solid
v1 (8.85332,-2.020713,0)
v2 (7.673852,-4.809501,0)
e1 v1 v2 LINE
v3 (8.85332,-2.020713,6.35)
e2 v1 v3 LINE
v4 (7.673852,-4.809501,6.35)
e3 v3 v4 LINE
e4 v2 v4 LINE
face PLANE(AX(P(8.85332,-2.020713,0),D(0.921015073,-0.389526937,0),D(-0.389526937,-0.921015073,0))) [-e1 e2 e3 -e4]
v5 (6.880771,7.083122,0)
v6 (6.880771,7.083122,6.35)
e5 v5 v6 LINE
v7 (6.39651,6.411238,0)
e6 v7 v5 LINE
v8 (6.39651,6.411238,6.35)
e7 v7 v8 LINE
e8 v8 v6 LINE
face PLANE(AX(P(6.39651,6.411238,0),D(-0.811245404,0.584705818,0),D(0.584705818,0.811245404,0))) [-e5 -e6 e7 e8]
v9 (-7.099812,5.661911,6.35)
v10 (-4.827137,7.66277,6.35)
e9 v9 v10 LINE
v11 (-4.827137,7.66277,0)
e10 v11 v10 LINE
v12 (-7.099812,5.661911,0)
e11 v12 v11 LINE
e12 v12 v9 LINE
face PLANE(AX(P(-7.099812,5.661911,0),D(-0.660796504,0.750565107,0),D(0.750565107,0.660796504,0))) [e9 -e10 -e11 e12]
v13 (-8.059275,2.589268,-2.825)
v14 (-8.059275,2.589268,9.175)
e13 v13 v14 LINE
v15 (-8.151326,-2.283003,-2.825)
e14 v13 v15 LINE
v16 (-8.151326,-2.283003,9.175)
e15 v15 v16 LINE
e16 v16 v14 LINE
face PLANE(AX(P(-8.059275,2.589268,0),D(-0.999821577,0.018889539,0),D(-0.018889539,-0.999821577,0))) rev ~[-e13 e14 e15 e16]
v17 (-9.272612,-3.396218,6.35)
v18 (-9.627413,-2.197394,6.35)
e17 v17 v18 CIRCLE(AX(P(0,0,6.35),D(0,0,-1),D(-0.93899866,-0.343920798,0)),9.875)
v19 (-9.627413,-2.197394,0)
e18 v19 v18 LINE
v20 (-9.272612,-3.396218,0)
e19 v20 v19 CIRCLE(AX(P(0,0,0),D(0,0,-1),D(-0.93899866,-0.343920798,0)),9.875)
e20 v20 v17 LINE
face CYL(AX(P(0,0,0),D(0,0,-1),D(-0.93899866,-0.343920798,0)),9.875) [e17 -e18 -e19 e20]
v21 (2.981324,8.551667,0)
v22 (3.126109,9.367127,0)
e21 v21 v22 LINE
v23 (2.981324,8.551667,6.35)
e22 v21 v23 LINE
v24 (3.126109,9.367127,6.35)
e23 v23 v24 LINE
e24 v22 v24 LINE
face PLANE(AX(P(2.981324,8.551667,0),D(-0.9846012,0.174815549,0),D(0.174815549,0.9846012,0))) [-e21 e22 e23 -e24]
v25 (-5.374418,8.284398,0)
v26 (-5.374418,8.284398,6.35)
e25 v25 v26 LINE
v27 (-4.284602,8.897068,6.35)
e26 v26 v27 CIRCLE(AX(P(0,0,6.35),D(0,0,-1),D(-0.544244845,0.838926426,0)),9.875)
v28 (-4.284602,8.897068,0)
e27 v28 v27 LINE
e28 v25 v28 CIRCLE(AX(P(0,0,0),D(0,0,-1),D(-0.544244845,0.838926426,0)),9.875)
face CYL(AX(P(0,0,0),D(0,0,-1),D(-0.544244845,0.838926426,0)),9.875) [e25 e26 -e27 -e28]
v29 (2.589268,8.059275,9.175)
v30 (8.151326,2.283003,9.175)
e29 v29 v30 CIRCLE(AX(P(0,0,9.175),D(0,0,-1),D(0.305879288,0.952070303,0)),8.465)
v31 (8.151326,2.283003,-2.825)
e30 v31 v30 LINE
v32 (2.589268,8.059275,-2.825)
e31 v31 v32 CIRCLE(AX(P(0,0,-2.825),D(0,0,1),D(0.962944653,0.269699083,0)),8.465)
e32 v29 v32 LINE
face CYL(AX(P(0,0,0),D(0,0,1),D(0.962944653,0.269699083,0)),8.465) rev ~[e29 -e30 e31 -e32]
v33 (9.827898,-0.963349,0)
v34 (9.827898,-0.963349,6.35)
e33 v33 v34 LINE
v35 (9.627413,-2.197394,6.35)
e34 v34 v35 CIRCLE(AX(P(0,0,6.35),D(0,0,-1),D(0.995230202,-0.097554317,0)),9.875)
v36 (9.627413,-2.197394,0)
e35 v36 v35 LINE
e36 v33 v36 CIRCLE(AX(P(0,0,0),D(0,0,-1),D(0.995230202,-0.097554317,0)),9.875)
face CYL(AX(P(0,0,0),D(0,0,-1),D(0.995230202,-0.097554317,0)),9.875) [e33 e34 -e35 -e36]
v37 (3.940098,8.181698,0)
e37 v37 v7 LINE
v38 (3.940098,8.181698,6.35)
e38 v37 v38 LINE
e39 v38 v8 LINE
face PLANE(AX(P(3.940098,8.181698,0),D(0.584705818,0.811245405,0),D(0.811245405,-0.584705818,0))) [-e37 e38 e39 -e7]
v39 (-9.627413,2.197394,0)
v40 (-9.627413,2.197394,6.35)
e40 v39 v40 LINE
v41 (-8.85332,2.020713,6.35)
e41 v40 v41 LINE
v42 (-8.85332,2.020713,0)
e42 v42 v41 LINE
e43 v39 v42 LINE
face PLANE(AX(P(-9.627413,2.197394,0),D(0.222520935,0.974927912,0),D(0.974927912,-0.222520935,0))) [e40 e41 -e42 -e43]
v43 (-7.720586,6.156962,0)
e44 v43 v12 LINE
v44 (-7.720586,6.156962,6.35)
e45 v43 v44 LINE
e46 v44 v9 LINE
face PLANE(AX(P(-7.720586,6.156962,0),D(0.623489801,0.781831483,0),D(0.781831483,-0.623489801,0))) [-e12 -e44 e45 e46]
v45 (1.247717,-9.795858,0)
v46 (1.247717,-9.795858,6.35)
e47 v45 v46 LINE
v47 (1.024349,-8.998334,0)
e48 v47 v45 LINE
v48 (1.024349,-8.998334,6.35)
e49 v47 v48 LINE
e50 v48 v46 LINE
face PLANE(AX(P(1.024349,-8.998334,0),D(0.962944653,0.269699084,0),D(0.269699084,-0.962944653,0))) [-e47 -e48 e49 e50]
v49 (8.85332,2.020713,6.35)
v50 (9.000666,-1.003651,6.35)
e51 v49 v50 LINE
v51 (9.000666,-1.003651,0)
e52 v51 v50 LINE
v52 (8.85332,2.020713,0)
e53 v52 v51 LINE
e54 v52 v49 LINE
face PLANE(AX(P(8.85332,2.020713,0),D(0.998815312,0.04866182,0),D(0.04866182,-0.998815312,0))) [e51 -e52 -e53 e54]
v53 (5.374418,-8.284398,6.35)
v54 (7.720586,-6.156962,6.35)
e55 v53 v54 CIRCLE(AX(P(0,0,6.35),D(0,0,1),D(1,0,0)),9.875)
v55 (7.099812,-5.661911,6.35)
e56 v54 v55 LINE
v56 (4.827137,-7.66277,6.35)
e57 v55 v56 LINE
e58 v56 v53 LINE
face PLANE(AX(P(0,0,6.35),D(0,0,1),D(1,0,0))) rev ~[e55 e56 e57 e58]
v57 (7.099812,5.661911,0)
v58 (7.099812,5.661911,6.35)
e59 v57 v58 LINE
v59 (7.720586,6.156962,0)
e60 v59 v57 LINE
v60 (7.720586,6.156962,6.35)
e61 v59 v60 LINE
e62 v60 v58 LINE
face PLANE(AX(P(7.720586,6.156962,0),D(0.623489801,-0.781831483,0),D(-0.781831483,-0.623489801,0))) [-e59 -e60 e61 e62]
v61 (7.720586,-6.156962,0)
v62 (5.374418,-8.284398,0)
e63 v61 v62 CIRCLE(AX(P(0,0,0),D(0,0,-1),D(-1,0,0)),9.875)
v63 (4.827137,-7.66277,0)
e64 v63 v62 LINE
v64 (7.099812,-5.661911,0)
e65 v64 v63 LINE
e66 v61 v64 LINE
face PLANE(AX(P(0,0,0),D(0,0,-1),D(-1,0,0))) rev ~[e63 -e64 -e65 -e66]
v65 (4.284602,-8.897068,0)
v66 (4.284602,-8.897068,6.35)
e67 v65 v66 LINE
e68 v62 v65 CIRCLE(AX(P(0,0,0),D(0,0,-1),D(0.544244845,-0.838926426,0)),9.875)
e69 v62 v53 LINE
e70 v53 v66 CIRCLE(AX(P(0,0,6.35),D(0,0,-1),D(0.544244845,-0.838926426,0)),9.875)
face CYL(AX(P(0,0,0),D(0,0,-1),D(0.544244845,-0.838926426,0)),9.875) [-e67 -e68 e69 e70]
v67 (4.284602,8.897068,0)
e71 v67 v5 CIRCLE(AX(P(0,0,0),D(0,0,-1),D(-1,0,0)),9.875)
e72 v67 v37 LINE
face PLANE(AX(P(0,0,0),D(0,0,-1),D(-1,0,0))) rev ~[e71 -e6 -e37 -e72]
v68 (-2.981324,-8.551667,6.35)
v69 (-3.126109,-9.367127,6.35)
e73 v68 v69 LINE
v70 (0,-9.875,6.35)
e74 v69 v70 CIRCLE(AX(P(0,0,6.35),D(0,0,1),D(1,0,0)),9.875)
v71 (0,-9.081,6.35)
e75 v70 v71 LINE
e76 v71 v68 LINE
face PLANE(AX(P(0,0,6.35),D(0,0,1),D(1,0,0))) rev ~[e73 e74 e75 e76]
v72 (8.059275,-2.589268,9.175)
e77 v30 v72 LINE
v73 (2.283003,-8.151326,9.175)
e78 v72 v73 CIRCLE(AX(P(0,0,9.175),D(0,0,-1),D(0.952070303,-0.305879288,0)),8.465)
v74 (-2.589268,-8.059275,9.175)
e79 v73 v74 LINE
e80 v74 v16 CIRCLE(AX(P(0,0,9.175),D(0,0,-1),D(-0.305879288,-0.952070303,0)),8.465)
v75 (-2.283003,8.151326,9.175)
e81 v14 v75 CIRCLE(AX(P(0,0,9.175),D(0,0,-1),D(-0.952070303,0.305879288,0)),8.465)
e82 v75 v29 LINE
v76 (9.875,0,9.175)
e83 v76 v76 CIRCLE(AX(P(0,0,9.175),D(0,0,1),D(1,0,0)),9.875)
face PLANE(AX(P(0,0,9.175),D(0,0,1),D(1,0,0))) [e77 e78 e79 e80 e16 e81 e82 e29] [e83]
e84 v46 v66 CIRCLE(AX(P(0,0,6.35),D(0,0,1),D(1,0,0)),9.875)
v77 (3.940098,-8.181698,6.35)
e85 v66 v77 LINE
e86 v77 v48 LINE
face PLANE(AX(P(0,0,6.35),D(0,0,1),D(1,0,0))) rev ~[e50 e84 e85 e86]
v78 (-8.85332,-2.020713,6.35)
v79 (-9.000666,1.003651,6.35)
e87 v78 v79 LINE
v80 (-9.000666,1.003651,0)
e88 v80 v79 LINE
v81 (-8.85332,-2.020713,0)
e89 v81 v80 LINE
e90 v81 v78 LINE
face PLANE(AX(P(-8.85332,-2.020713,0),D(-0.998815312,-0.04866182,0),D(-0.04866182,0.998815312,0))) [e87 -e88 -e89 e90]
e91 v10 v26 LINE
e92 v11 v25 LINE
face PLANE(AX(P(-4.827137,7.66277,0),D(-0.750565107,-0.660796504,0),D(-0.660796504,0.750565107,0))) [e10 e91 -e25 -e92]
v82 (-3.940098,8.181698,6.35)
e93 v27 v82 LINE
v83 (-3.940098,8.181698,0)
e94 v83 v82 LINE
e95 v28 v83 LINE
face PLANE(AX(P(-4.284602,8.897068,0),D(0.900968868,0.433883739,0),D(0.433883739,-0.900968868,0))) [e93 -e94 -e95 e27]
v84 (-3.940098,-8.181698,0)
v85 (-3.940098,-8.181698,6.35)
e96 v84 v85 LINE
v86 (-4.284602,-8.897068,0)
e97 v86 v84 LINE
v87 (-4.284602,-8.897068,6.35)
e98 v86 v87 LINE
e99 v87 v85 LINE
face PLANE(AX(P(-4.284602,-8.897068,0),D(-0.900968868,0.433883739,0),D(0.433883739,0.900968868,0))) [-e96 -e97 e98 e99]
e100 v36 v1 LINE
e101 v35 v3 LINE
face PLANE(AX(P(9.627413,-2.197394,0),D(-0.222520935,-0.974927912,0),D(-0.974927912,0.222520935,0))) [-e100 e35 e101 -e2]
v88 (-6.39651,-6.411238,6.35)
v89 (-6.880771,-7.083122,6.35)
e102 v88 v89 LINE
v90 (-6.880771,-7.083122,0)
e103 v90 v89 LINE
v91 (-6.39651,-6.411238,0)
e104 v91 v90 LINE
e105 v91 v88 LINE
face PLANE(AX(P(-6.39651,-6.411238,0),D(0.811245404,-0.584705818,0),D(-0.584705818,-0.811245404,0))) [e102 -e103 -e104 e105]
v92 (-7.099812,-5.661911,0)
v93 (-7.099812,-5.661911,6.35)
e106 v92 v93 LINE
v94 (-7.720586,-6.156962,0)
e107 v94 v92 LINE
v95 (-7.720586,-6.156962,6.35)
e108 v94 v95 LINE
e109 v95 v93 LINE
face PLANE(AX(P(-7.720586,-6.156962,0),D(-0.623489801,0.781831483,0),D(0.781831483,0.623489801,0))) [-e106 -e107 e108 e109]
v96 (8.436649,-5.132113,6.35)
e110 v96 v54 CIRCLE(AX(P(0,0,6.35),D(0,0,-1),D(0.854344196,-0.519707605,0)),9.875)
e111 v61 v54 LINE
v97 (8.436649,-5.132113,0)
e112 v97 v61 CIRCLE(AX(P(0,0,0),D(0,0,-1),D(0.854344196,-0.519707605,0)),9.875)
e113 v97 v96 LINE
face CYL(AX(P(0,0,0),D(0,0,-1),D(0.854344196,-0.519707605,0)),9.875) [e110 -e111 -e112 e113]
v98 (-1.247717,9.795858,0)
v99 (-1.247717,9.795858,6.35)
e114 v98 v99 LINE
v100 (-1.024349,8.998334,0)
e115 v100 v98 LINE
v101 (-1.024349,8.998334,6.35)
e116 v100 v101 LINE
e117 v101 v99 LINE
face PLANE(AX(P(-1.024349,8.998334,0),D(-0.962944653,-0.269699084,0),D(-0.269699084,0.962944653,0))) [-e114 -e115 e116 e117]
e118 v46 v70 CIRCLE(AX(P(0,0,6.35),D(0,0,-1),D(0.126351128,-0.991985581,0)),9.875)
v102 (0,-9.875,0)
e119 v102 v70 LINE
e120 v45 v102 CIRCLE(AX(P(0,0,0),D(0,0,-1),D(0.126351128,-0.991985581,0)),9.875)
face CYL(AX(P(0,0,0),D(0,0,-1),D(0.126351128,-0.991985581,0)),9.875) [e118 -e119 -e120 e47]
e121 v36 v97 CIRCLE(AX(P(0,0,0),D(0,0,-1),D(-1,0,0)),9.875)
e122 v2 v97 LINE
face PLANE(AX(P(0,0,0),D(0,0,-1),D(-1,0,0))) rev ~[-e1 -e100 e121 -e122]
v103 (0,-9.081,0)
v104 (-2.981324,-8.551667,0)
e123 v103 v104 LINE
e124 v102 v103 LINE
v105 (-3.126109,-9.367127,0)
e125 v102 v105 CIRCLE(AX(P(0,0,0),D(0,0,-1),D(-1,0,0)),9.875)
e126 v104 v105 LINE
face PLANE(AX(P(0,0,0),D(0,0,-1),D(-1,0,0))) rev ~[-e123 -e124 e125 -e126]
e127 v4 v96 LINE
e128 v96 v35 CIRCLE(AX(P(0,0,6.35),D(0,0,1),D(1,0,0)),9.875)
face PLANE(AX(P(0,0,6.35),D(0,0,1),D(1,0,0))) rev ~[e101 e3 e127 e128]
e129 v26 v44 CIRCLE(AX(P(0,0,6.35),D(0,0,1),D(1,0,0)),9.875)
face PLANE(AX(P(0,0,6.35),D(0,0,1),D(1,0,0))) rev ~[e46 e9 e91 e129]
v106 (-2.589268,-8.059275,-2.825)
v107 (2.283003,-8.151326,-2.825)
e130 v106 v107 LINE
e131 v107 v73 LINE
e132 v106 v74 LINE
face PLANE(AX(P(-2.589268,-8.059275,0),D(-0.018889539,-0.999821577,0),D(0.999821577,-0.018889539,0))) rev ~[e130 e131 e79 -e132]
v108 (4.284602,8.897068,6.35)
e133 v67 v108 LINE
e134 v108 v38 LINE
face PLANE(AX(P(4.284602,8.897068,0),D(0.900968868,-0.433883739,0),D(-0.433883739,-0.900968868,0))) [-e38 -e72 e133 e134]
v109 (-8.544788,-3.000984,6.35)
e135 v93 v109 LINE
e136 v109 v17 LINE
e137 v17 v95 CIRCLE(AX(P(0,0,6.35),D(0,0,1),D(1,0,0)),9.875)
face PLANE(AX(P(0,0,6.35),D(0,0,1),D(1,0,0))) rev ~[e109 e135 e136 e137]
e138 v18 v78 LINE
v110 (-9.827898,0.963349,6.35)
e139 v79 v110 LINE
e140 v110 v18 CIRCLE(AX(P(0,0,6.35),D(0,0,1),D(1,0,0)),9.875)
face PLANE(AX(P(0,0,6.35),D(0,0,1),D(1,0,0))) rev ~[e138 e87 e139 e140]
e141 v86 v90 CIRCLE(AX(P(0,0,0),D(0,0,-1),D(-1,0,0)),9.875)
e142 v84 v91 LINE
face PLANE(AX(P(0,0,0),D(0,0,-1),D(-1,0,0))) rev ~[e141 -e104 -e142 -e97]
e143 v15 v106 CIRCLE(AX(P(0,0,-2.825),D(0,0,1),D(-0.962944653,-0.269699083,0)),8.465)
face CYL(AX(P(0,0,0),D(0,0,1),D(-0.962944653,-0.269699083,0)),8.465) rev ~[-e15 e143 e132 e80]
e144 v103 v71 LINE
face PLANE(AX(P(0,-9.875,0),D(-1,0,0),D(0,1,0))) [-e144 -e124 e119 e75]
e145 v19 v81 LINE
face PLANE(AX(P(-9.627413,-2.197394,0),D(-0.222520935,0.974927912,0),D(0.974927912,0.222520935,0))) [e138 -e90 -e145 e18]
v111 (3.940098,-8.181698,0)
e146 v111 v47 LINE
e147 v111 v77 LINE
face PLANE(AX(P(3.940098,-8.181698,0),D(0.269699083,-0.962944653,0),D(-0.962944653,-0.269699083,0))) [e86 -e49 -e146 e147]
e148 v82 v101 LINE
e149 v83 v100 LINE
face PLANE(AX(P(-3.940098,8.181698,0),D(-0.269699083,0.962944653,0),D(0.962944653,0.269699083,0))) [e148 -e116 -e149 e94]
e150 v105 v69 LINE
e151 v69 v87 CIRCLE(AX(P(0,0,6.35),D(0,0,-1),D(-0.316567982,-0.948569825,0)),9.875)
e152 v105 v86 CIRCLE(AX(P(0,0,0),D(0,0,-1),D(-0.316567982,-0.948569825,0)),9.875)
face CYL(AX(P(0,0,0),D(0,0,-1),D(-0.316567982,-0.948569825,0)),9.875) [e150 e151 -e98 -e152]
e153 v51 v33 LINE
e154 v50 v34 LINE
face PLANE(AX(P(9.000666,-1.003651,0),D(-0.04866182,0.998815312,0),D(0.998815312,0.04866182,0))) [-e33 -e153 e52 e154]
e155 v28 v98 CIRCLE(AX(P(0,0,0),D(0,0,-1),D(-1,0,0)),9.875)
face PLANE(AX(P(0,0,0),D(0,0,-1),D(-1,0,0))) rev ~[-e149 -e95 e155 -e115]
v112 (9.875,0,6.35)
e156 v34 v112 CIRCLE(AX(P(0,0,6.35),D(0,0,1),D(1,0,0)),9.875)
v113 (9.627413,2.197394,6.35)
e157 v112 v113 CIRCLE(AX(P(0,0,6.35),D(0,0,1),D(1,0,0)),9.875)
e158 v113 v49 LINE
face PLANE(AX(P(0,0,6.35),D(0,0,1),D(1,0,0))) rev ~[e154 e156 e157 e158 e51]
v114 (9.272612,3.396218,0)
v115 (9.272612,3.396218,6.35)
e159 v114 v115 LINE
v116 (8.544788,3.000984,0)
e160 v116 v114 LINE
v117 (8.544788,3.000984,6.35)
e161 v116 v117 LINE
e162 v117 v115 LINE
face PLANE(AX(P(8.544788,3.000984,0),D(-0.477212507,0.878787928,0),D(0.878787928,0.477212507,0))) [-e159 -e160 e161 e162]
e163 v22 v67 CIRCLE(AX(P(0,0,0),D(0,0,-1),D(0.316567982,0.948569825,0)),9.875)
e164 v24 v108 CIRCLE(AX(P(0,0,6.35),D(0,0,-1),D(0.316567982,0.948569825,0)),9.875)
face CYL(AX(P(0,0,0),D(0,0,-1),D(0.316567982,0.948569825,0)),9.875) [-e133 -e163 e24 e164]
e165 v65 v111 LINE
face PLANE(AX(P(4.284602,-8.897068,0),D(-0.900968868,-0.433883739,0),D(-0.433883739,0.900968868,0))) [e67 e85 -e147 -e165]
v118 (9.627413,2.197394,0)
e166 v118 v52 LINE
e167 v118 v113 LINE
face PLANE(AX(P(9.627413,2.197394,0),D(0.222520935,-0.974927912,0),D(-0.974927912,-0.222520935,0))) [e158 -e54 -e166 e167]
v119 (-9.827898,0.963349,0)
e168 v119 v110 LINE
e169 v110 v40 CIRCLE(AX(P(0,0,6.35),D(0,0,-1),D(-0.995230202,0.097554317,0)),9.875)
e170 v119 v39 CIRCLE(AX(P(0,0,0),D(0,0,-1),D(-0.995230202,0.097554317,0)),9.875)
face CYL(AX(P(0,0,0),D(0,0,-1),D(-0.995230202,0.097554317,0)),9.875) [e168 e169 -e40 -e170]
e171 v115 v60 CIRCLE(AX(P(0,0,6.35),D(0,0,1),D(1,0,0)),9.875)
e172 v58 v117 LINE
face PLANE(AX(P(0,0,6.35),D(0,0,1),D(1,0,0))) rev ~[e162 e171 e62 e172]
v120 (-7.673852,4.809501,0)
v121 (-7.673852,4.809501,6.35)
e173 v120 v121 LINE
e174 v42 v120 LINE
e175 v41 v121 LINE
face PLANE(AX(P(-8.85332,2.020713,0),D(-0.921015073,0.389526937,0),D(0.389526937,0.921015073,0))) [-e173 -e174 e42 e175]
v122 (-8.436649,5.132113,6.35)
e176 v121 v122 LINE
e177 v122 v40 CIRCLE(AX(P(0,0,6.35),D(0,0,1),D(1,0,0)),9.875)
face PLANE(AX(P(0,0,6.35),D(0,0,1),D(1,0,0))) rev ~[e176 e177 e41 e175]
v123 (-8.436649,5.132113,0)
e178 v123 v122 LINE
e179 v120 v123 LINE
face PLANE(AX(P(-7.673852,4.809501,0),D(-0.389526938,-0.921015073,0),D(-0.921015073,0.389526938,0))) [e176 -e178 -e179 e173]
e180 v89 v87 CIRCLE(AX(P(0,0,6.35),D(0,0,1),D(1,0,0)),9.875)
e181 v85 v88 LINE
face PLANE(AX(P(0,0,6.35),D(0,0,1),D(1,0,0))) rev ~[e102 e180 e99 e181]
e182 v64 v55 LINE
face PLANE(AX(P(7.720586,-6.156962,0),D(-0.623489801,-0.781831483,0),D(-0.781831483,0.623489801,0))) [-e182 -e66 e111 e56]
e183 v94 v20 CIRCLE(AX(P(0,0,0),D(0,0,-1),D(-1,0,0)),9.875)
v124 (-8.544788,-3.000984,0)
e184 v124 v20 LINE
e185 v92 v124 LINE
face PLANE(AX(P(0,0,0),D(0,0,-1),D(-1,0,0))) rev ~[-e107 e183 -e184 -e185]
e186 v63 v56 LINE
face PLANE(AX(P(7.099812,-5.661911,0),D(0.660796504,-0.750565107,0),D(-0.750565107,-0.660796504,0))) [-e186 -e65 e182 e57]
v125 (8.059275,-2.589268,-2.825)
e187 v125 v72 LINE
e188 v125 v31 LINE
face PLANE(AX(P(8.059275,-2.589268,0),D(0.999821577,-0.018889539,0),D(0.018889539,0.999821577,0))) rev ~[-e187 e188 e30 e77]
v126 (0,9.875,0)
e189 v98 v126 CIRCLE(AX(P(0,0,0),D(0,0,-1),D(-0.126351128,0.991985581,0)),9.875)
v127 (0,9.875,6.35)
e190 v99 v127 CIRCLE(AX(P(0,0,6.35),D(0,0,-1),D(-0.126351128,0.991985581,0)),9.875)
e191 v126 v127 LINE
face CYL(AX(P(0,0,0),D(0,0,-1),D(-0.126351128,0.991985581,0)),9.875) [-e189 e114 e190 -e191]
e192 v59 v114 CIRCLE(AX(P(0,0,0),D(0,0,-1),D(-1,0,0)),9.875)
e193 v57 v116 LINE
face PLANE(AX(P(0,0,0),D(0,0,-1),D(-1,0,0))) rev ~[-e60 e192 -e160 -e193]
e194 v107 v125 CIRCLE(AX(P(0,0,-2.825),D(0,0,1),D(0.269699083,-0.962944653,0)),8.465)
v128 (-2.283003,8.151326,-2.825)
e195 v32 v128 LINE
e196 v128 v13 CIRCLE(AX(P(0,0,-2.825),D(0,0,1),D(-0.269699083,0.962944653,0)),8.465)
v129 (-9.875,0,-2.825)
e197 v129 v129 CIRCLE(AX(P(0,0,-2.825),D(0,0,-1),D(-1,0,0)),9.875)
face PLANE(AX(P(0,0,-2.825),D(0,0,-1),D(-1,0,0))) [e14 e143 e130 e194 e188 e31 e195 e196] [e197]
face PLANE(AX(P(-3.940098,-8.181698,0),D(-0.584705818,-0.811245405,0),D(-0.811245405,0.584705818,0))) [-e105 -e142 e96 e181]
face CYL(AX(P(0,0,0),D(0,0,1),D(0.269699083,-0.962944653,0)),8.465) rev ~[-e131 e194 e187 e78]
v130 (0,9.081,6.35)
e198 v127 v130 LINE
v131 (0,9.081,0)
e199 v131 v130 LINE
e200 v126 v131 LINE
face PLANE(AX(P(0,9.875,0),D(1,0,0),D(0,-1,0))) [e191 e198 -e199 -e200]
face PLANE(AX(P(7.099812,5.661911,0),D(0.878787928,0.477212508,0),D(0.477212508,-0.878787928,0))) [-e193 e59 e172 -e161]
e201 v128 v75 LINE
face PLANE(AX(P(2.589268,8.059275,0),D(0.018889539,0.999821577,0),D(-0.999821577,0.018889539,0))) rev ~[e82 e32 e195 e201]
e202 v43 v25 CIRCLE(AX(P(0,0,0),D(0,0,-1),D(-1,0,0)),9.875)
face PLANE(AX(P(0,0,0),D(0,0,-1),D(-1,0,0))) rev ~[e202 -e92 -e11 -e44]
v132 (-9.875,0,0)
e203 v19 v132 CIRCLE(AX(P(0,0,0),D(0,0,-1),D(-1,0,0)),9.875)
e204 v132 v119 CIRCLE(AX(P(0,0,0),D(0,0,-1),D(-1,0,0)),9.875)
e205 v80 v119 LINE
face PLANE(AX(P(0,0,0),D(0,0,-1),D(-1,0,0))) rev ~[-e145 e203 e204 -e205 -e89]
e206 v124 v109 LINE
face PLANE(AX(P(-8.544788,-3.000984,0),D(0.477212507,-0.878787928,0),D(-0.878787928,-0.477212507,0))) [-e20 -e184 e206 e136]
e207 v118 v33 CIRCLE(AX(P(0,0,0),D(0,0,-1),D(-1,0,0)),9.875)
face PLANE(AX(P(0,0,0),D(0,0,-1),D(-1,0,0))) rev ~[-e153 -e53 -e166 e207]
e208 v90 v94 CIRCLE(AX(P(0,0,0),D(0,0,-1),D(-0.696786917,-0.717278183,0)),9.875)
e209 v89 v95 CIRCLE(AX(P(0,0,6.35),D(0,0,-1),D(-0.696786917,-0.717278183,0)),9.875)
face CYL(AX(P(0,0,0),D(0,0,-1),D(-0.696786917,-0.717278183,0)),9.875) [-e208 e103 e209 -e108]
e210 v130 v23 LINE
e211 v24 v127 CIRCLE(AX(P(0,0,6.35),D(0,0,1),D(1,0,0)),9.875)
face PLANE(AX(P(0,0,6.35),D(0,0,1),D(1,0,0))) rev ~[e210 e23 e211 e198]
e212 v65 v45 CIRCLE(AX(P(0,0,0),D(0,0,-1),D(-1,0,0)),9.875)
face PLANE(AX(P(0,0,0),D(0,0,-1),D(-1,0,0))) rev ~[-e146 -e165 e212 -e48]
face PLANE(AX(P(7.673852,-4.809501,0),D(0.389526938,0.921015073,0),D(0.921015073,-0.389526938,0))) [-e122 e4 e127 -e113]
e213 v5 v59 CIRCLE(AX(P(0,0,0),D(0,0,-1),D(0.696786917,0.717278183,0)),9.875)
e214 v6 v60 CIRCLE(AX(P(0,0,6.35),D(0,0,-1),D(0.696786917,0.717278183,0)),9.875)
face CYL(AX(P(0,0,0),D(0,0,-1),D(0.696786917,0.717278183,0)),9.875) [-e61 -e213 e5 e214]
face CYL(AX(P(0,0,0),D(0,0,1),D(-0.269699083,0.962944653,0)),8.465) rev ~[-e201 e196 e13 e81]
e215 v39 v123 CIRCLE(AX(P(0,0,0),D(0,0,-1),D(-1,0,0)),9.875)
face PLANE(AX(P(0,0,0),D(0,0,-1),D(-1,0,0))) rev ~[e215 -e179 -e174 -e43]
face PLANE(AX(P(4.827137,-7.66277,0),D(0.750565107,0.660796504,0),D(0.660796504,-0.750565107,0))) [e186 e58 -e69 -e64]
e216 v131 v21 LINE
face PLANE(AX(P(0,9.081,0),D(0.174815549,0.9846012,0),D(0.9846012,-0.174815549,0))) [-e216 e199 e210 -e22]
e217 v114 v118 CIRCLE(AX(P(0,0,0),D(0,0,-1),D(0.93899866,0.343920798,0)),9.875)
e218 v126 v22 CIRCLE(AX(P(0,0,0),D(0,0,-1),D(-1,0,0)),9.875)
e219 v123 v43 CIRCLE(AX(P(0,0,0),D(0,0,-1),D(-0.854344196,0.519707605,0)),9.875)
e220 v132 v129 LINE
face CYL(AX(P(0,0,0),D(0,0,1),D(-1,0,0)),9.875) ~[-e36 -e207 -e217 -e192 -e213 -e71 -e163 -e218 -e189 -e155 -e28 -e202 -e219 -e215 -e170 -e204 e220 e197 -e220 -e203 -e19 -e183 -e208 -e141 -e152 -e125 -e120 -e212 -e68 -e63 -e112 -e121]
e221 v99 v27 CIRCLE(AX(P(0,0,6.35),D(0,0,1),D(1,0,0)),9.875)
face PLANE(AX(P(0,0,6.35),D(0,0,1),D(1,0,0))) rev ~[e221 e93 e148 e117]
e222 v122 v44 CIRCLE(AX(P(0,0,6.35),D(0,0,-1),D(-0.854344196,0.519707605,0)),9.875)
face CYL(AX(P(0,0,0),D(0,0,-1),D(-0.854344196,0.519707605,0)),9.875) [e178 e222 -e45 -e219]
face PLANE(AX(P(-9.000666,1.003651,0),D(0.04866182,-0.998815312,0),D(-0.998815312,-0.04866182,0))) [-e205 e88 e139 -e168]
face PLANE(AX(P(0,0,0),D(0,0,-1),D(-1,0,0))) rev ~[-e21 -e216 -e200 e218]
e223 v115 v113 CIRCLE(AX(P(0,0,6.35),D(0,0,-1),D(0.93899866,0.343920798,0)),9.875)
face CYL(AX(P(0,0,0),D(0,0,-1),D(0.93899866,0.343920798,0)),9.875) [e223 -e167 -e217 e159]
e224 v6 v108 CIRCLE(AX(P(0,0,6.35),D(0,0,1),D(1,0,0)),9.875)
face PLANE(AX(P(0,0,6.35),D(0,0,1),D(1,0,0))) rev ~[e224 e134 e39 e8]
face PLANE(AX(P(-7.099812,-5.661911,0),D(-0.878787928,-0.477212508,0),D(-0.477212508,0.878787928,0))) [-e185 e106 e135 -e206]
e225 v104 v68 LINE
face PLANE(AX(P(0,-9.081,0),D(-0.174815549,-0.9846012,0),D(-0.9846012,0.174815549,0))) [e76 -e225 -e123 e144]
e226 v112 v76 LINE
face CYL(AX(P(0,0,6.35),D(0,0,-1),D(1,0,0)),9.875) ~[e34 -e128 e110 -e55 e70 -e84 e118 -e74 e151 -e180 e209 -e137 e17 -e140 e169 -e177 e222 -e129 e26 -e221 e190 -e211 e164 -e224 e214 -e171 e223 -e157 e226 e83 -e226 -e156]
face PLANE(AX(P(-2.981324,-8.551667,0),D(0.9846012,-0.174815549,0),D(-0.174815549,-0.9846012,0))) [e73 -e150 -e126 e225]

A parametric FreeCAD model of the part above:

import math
import FreeCAD as App
import Part
import Sketcher

V = App.Vector
Q = App.Units.Quantity

doc = App.newDocument("Part")
params = doc.addObject("Spreadsheet::Sheet", "Params")
for row, (alias, value) in enumerate([
    ("pad1_length", "0.25 in"),
    ("pad2_length", "2.825 mm"),
    ("pad3_length", "2.825 mm"),
], start=1):
    params.set(f"A{row}", alias)
    params.set(f"B{row}", "=" + value)
    params.setAlias(f"B{row}", alias)

body = doc.addObject("PartDesign::Body", "Body")

sketch1 = doc.addObject("Sketcher::SketchObject", "Sketch")
body.addObject(sketch1)
sketch1.AttachmentSupport = (doc.XY_Plane, [""])
sketch1.MapMode = "FlatFace"
sketch1.addGeometry(Part.LineSegment(V(2.981324, 8.551667, 0), V(0, 9.081, 0)), False)
sketch1.addGeometry(Part.LineSegment(V(0, 9.081, 0), V(0, 9.875, 0)), False)
sketch1.addGeometry(Part.ArcOfCircle(Part.Circle(V(0, 0, 0), V(0, 0, 1), 9.875), math.radians(90), math.radians(97.258788)), False)
sketch1.addGeometry(Part.LineSegment(V(-1.247717, 9.795858, 0), V(-1.024349, 8.998334, 0)), False)
sketch1.addGeometry(Part.LineSegment(V(-1.024349, 8.998334, 0), V(-3.940098, 8.181698, 0)), False)
sketch1.addGeometry(Part.LineSegment(V(-3.940098, 8.181698, 0), V(-4.284602, 8.897068, 0)), False)
sketch1.addGeometry(Part.ArcOfCircle(Part.Circle(V(0, 0, 0), V(0, 0, 1), 9.875), math.radians(115.714286), math.radians(122.973074)), False)
sketch1.addGeometry(Part.LineSegment(V(-5.374418, 8.284398, 0), V(-4.827137, 7.66277, 0)), False)
sketch1.addGeometry(Part.LineSegment(V(-4.827137, 7.66277, 0), V(-7.099812, 5.661911, 0)), False)
sketch1.addGeometry(Part.LineSegment(V(-7.099812, 5.661911, 0), V(-7.720586, 6.156962, 0)), False)
sketch1.addGeometry(Part.ArcOfCircle(Part.Circle(V(0, 0, 0), V(0, 0, 1), 9.875), math.radians(141.428571), math.radians(148.68736)), False)
sketch1.addGeometry(Part.LineSegment(V(-8.436649, 5.132113, 0), V(-7.673852, 4.809501, 0)), False)
sketch1.addGeometry(Part.LineSegment(V(-7.673852, 4.809501, 0), V(-8.85332, 2.020713, 0)), False)
sketch1.addGeometry(Part.LineSegment(V(-8.85332, 2.020713, 0), V(-9.627413, 2.197394, 0)), False)
sketch1.addGeometry(Part.ArcOfCircle(Part.Circle(V(0, 0, 0), V(0, 0, 1), 9.875), math.radians(167.142857), math.radians(174.401646)), False)
sketch1.addGeometry(Part.LineSegment(V(-9.827898, 0.963349, 0), V(-9.000666, 1.003651, 0)), False)
sketch1.addGeometry(Part.LineSegment(V(-9.000666, 1.003651, 0), V(-8.85332, -2.020713, 0)), False)
sketch1.addGeometry(Part.LineSegment(V(-8.85332, -2.020713, 0), V(-9.627413, -2.197394, 0)), False)
sketch1.addGeometry(Part.ArcOfCircle(Part.Circle(V(0, 0, 0), V(0, 0, 1), 9.875), math.radians(-167.142857), math.radians(-159.884069)), False)
sketch1.addGeometry(Part.LineSegment(V(-9.272612, -3.396218, 0), V(-8.544788, -3.000984, 0)), False)
sketch1.addGeometry(Part.LineSegment(V(-8.544788, -3.000984, 0), V(-7.099812, -5.661911, 0)), False)
sketch1.addGeometry(Part.LineSegment(V(-7.099812, -5.661911, 0), V(-7.720586, -6.156962, 0)), False)
sketch1.addGeometry(Part.ArcOfCircle(Part.Circle(V(0, 0, 0), V(0, 0, 1), 9.875), math.radians(-141.428572), math.radians(-134.169783)), False)
sketch1.addGeometry(Part.LineSegment(V(-6.880771, -7.083122, 0), V(-6.39651, -6.411238, 0)), False)
sketch1.addGeometry(Part.LineSegment(V(-6.39651, -6.411238, 0), V(-3.940098, -8.181698, 0)), False)
sketch1.addGeometry(Part.LineSegment(V(-3.940098, -8.181698, 0), V(-4.284602, -8.897068, 0)), False)
sketch1.addGeometry(Part.ArcOfCircle(Part.Circle(V(0, 0, 0), V(0, 0, 1), 9.875), math.radians(-115.714286), math.radians(-108.455497)), False)
sketch1.addGeometry(Part.LineSegment(V(-3.126109, -9.367127, 0), V(-2.981324, -8.551667, 0)), False)
sketch1.addGeometry(Part.LineSegment(V(-2.981324, -8.551667, 0), V(0, -9.081, 0)), False)
sketch1.addGeometry(Part.LineSegment(V(0, -9.081, 0), V(0, -9.875, 0)), False)
sketch1.addGeometry(Part.ArcOfCircle(Part.Circle(V(0, 0, 0), V(0, 0, 1), 9.875), math.radians(-90), math.radians(-82.741212)), False)
sketch1.addGeometry(Part.LineSegment(V(1.247717, -9.795858, 0), V(1.024349, -8.998334, 0)), False)
sketch1.addGeometry(Part.LineSegment(V(1.024349, -8.998334, 0), V(3.940098, -8.181698, 0)), False)
sketch1.addGeometry(Part.LineSegment(V(3.940098, -8.181698, 0), V(4.284602, -8.897068, 0)), False)
sketch1.addGeometry(Part.ArcOfCircle(Part.Circle(V(0, 0, 0), V(0, 0, 1), 9.875), math.radians(-64.285714), math.radians(-57.026926)), False)
sketch1.addGeometry(Part.LineSegment(V(5.374418, -8.284398, 0), V(4.827137, -7.66277, 0)), False)
sketch1.addGeometry(Part.LineSegment(V(4.827137, -7.66277, 0), V(7.099812, -5.661911, 0)), False)
sketch1.addGeometry(Part.LineSegment(V(7.099812, -5.661911, 0), V(7.720586, -6.156962, 0)), False)
sketch1.addGeometry(Part.ArcOfCircle(Part.Circle(V(0, 0, 0), V(0, 0, 1), 9.875), math.radians(-38.571429), math.radians(-31.31264)), False)
sketch1.addGeometry(Part.LineSegment(V(8.436649, -5.132113, 0), V(7.673852, -4.809501, 0)), False)
sketch1.addGeometry(Part.LineSegment(V(7.673852, -4.809501, 0), V(8.85332, -2.020713, 0)), False)
sketch1.addGeometry(Part.LineSegment(V(8.85332, -2.020713, 0), V(9.627413, -2.197394, 0)), False)
sketch1.addGeometry(Part.ArcOfCircle(Part.Circle(V(0, 0, 0), V(0, 0, 1), 9.875), math.radians(-12.857143), math.radians(-5.598354)), False)
sketch1.addGeometry(Part.LineSegment(V(9.827898, -0.963349, 0), V(9.000666, -1.003651, 0)), False)
sketch1.addGeometry(Part.LineSegment(V(9.000666, -1.003651, 0), V(8.85332, 2.020713, 0)), False)
sketch1.addGeometry(Part.LineSegment(V(8.85332, 2.020713, 0), V(9.627413, 2.197394, 0)), False)
sketch1.addGeometry(Part.ArcOfCircle(Part.Circle(V(0, 0, 0), V(0, 0, 1), 9.875), math.radians(12.857143), math.radians(20.115931)), False)
sketch1.addGeometry(Part.LineSegment(V(9.272612, 3.396218, 0), V(8.544788, 3.000984, 0)), False)
sketch1.addGeometry(Part.LineSegment(V(8.544788, 3.000984, 0), V(7.099812, 5.661911, 0)), False)
sketch1.addGeometry(Part.LineSegment(V(7.099812, 5.661911, 0), V(7.720586, 6.156962, 0)), False)
sketch1.addGeometry(Part.ArcOfCircle(Part.Circle(V(0, 0, 0), V(0, 0, 1), 9.875), math.radians(38.571428), math.radians(45.830217)), False)
sketch1.addGeometry(Part.LineSegment(V(6.880771, 7.083122, 0), V(6.39651, 6.411238, 0)), False)
sketch1.addGeometry(Part.LineSegment(V(6.39651, 6.411238, 0), V(3.940098, 8.181698, 0)), False)
sketch1.addGeometry(Part.LineSegment(V(3.940098, 8.181698, 0), V(4.284602, 8.897068, 0)), False)
sketch1.addGeometry(Part.ArcOfCircle(Part.Circle(V(0, 0, 0), V(0, 0, 1), 9.875), math.radians(64.285714), math.radians(71.544503)), False)
sketch1.addGeometry(Part.LineSegment(V(3.126109, 9.367127, 0), V(2.981324, 8.551667, 0)), False)
sketch1.addGeometry(Part.ArcOfCircle(Part.Circle(V(0, 0, 0), V(0, 0, 1), 8.465), math.radians(15.646361), math.radians(72.188928)), False)
sketch1.addGeometry(Part.LineSegment(V(8.151326, 2.283003, 0), V(8.059275, -2.589268, 0)), False)
sketch1.addGeometry(Part.ArcOfCircle(Part.Circle(V(0, 0, 0), V(0, 0, 1), 8.465), math.radians(-74.353639), math.radians(-17.811072)), False)
sketch1.addGeometry(Part.LineSegment(V(2.283003, -8.151326, 0), V(-2.589268, -8.059275, 0)), False)
sketch1.addGeometry(Part.ArcOfCircle(Part.Circle(V(0, 0, 0), V(0, 0, 1), 8.465), math.radians(-164.353639), math.radians(-107.811072)), False)
sketch1.addGeometry(Part.LineSegment(V(-8.151326, -2.283003, 0), V(-8.059275, 2.589268, 0)), False)
sketch1.addGeometry(Part.ArcOfCircle(Part.Circle(V(0, 0, 0), V(0, 0, 1), 8.465), math.radians(105.646361), math.radians(162.188928)), False)
sketch1.addGeometry(Part.LineSegment(V(-2.283003, 8.151326, 0), V(2.589268, 8.059275, 0)), False)
sketch1.addConstraint(Sketcher.Constraint("Coincident", 0, 2, 1, 1))
sketch1.addConstraint(Sketcher.Constraint("Coincident", 1, 2, 2, 1))
sketch1.addConstraint(Sketcher.Constraint("Coincident", 2, 2, 3, 1))
sketch1.addConstraint(Sketcher.Constraint("Coincident", 3, 2, 4, 1))
sketch1.addConstraint(Sketcher.Constraint("Coincident", 4, 2, 5, 1))
sketch1.addConstraint(Sketcher.Constraint("Coincident", 5, 2, 6, 1))
sketch1.addConstraint(Sketcher.Constraint("Coincident", 6, 2, 7, 1))
sketch1.addConstraint(Sketcher.Constraint("Coincident", 7, 2, 8, 1))
sketch1.addConstraint(Sketcher.Constraint("Coincident", 8, 2, 9, 1))
sketch1.addConstraint(Sketcher.Constraint("Coincident", 9, 2, 10, 1))
sketch1.addConstraint(Sketcher.Constraint("Coincident", 10, 2, 11, 1))
sketch1.addConstraint(Sketcher.Constraint("Coincident", 11, 2, 12, 1))
sketch1.addConstraint(Sketcher.Constraint("Coincident", 12, 2, 13, 1))
sketch1.addConstraint(Sketcher.Constraint("Coincident", 13, 2, 14, 1))
sketch1.addConstraint(Sketcher.Constraint("Coincident", 14, 2, 15, 1))
sketch1.addConstraint(Sketcher.Constraint("Coincident", 15, 2, 16, 1))
sketch1.addConstraint(Sketcher.Constraint("Coincident", 16, 2, 17, 1))
sketch1.addConstraint(Sketcher.Constraint("Coincident", 17, 2, 18, 1))
sketch1.addConstraint(Sketcher.Constraint("Coincident", 18, 2, 19, 1))
sketch1.addConstraint(Sketcher.Constraint("Coincident", 19, 2, 20, 1))
sketch1.addConstraint(Sketcher.Constraint("Coincident", 20, 2, 21, 1))
sketch1.addConstraint(Sketcher.Constraint("Coincident", 21, 2, 22, 1))
sketch1.addConstraint(Sketcher.Constraint("Coincident", 22, 2, 23, 1))
sketch1.addConstraint(Sketcher.Constraint("Coincident", 23, 2, 24, 1))
sketch1.addConstraint(Sketcher.Constraint("Coincident", 24, 2, 25, 1))
sketch1.addConstraint(Sketcher.Constraint("Coincident", 25, 2, 26, 1))
sketch1.addConstraint(Sketcher.Constraint("Coincident", 26, 2, 27, 1))
sketch1.addConstraint(Sketcher.Constraint("Coincident", 27, 2, 28, 1))
sketch1.addConstraint(Sketcher.Constraint("Coincident", 28, 2, 29, 1))
sketch1.addConstraint(Sketcher.Constraint("Coincident", 29, 2, 30, 1))
sketch1.addConstraint(Sketcher.Constraint("Coincident", 30, 2, 31, 1))
sketch1.addConstraint(Sketcher.Constraint("Coincident", 31, 2, 32, 1))
sketch1.addConstraint(Sketcher.Constraint("Coincident", 32, 2, 33, 1))
sketch1.addConstraint(Sketcher.Constraint("Coincident", 33, 2, 34, 1))
sketch1.addConstraint(Sketcher.Constraint("Coincident", 34, 2, 35, 1))
sketch1.addConstraint(Sketcher.Constraint("Coincident", 35, 2, 36, 1))
sketch1.addConstraint(Sketcher.Constraint("Coincident", 36, 2, 37, 1))
sketch1.addConstraint(Sketcher.Constraint("Coincident", 37, 2, 38, 1))
sketch1.addConstraint(Sketcher.Constraint("Coincident", 38, 2, 39, 1))
sketch1.addConstraint(Sketcher.Constraint("Coincident", 39, 2, 40, 1))
sketch1.addConstraint(Sketcher.Constraint("Coincident", 40, 2, 41, 1))
sketch1.addConstraint(Sketcher.Constraint("Coincident", 41, 2, 42, 1))
sketch1.addConstraint(Sketcher.Constraint("Coincident", 42, 2, 43, 1))
sketch1.addConstraint(Sketcher.Constraint("Coincident", 43, 2, 44, 1))
sketch1.addConstraint(Sketcher.Constraint("Coincident", 44, 2, 45, 1))
sketch1.addConstraint(Sketcher.Constraint("Coincident", 45, 2, 46, 1))
sketch1.addConstraint(Sketcher.Constraint("Coincident", 46, 2, 47, 1))
sketch1.addConstraint(Sketcher.Constraint("Coincident", 47, 2, 48, 1))
sketch1.addConstraint(Sketcher.Constraint("Coincident", 48, 2, 49, 1))
sketch1.addConstraint(Sketcher.Constraint("Coincident", 49, 2, 50, 1))
sketch1.addConstraint(Sketcher.Constraint("Coincident", 50, 2, 51, 1))
sketch1.addConstraint(Sketcher.Constraint("Coincident", 51, 2, 52, 1))
sketch1.addConstraint(Sketcher.Constraint("Coincident", 52, 2, 53, 1))
sketch1.addConstraint(Sketcher.Constraint("Coincident", 53, 2, 54, 1))
sketch1.addConstraint(Sketcher.Constraint("Coincident", 54, 2, 55, 1))
sketch1.addConstraint(Sketcher.Constraint("Coincident", 55, 2, 0, 1))
sketch1.addConstraint(Sketcher.Constraint("Coincident", 56, 1, 57, 1))
sketch1.addConstraint(Sketcher.Constraint("Coincident", 57, 2, 58, 2))
sketch1.addConstraint(Sketcher.Constraint("Coincident", 58, 1, 59, 1))
sketch1.addConstraint(Sketcher.Constraint("Coincident", 59, 2, 60, 2))
sketch1.addConstraint(Sketcher.Constraint("Coincident", 60, 1, 61, 1))
sketch1.addConstraint(Sketcher.Constraint("Coincident", 61, 2, 62, 2))
sketch1.addConstraint(Sketcher.Constraint("Coincident", 62, 1, 63, 1))
sketch1.addConstraint(Sketcher.Constraint("Coincident", 63, 2, 56, 2))
sketch1.addConstraint(Sketcher.Constraint("Vertical", 1))
sketch1.addConstraint(Sketcher.Constraint("Vertical", 29))
sketch1.addConstraint(Sketcher.Constraint("Coincident", 2, 3, -1, 1))
sketch1.addConstraint(Sketcher.Constraint("Coincident", 6, 3, -1, 1))
sketch1.addConstraint(Sketcher.Constraint("Coincident", 10, 3, -1, 1))
sketch1.addConstraint(Sketcher.Constraint("Coincident", 14, 3, -1, 1))
sketch1.addConstraint(Sketcher.Constraint("Coincident", 18, 3, -1, 1))
sketch1.addConstraint(Sketcher.Constraint("Coincident", 22, 3, -1, 1))
sketch1.addConstraint(Sketcher.Constraint("Coincident", 26, 3, -1, 1))
sketch1.addConstraint(Sketcher.Constraint("Coincident", 30, 3, -1, 1))
sketch1.addConstraint(Sketcher.Constraint("Coincident", 34, 3, -1, 1))
sketch1.addConstraint(Sketcher.Constraint("Coincident", 38, 3, -1, 1))
sketch1.addConstraint(Sketcher.Constraint("Coincident", 42, 3, -1, 1))
sketch1.addConstraint(Sketcher.Constraint("Coincident", 46, 3, -1, 1))
sketch1.addConstraint(Sketcher.Constraint("Coincident", 50, 3, -1, 1))
sketch1.addConstraint(Sketcher.Constraint("Coincident", 54, 3, -1, 1))
sketch1.addConstraint(Sketcher.Constraint("Coincident", 56, 3, -1, 1))
sketch1.addConstraint(Sketcher.Constraint("Coincident", 58, 3, -1, 1))
sketch1.addConstraint(Sketcher.Constraint("Coincident", 60, 3, -1, 1))
sketch1.addConstraint(Sketcher.Constraint("Coincident", 62, 3, -1, 1))
sketch1.addConstraint(Sketcher.Constraint("Equal", 2, 6))
sketch1.addConstraint(Sketcher.Constraint("Equal", 6, 10))
sketch1.addConstraint(Sketcher.Constraint("Equal", 10, 14))
sketch1.addConstraint(Sketcher.Constraint("Equal", 14, 18))
sketch1.addConstraint(Sketcher.Constraint("Equal", 18, 22))
sketch1.addConstraint(Sketcher.Constraint("Equal", 22, 26))
sketch1.addConstraint(Sketcher.Constraint("Equal", 26, 30))
sketch1.addConstraint(Sketcher.Constraint("Equal", 30, 34))
sketch1.addConstraint(Sketcher.Constraint("Equal", 34, 38))
sketch1.addConstraint(Sketcher.Constraint("Equal", 38, 42))
sketch1.addConstraint(Sketcher.Constraint("Equal", 42, 46))
sketch1.addConstraint(Sketcher.Constraint("Equal", 46, 50))
sketch1.addConstraint(Sketcher.Constraint("Equal", 50, 54))
sketch1.addConstraint(Sketcher.Constraint("Equal", 56, 58))
sketch1.addConstraint(Sketcher.Constraint("Equal", 58, 60))
sketch1.addConstraint(Sketcher.Constraint("Equal", 60, 62))
sketch1.addConstraint(Sketcher.Constraint("Symmetric", 0, 2, 28, 2, -1, 1))
sketch1.addConstraint(Sketcher.Constraint("Symmetric", 3, 2, 31, 2, -1, 1))
sketch1.addConstraint(Sketcher.Constraint("Symmetric", 4, 2, 32, 2, -1, 1))
sketch1.addConstraint(Sketcher.Constraint("Symmetric", 7, 2, 35, 2, -1, 1))
sketch1.addConstraint(Sketcher.Constraint("Symmetric", 8, 2, 36, 2, -1, 1))
sketch1.addConstraint(Sketcher.Constraint("Symmetric", 11, 2, 39, 2, -1, 1))
sketch1.addConstraint(Sketcher.Constraint("Symmetric", 12, 2, 40, 2, -1, 1))
sketch1.addConstraint(Sketcher.Constraint("Symmetric", 15, 2, 43, 2, -1, 1))
sketch1.addConstraint(Sketcher.Constraint("Symmetric", 16, 2, 44, 2, -1, 1))
sketch1.addConstraint(Sketcher.Constraint("Symmetric", 19, 2, 47, 2, -1, 1))
sketch1.addConstraint(Sketcher.Constraint("Symmetric", 20, 2, 48, 2, -1, 1))
sketch1.addConstraint(Sketcher.Constraint("Symmetric", 23, 2, 51, 2, -1, 1))
sketch1.addConstraint(Sketcher.Constraint("Symmetric", 24, 2, 52, 2, -1, 1))
sketch1.addConstraint(Sketcher.Constraint("Symmetric", 27, 2, 55, 2, -1, 1))
sketch1.addConstraint(Sketcher.Constraint("Symmetric", 24, 2, 32, 2, -2))
sketch1.addConstraint(Sketcher.Constraint("Symmetric", 20, 2, 36, 2, -2))
sketch1.addConstraint(Sketcher.Constraint("Symmetric", 16, 2, 40, 2, -2))
sketch1.addConstraint(Sketcher.Constraint("PointOnObject", 0, 2, -2))
sketch1.addConstraint(Sketcher.Constraint("Perpendicular", 3, 4))
sketch1.addConstraint(Sketcher.Constraint("Perpendicular", 7, 8))
sketch1.addConstraint(Sketcher.Constraint("Perpendicular", 11, 12))
sketch1.addConstraint(Sketcher.Constraint("Perpendicular", 15, 16))
sketch1.addConstraint(Sketcher.Constraint("Perpendicular", 19, 20))
sketch1.addConstraint(Sketcher.Constraint("Perpendicular", 23, 24))
sketch1.addConstraint(Sketcher.Constraint("Perpendicular", 0, 27))
sketch1.addConstraint(Sketcher.Constraint("Perpendicular", 4, 31))
sketch1.addConstraint(Sketcher.Constraint("Parallel", 5, 33))
sketch1.addConstraint(Sketcher.Constraint("Perpendicular", 8, 35))
sketch1.addConstraint(Sketcher.Constraint("Parallel", 9, 37))
sketch1.addConstraint(Sketcher.Constraint("Perpendicular", 12, 39))
sketch1.addConstraint(Sketcher.Constraint("Parallel", 13, 41))
sketch1.addConstraint(Sketcher.Constraint("Perpendicular", 16, 43))
sketch1.addConstraint(Sketcher.Constraint("Parallel", 17, 45))
sketch1.addConstraint(Sketcher.Constraint("Perpendicular", 20, 47))
sketch1.addConstraint(Sketcher.Constraint("Parallel", 21, 49))
sketch1.addConstraint(Sketcher.Constraint("Perpendicular", 24, 51))
sketch1.addConstraint(Sketcher.Constraint("Parallel", 25, 53))
sketch1.addConstraint(Sketcher.Constraint("Perpendicular", 28, 55))
sketch1.addConstraint(Sketcher.Constraint("Perpendicular", 57, 59))
sketch1.addConstraint(Sketcher.Constraint("Perpendicular", 59, 61))
sketch1.addConstraint(Sketcher.Constraint("Perpendicular", 61, 63))
sketch1.addConstraint(Sketcher.Constraint("Horizontal", 25, 2, 33, 2))
sketch1.addConstraint(Sketcher.Constraint("Horizontal", 21, 2, 37, 2))
sketch1.addConstraint(Sketcher.Constraint("Horizontal", 17, 2, 41, 2))
sketch1.addConstraint(Sketcher.Constraint("Equal", 0, 4))
sketch1.addConstraint(Sketcher.Constraint("Equal", 3, 7))
sketch1.addConstraint(Sketcher.Constraint("Equal", 4, 8))
sketch1.addConstraint(Sketcher.Constraint("Equal", 5, 9))
sketch1.addConstraint(Sketcher.Constraint("Equal", 7, 11))
sketch1.addConstraint(Sketcher.Constraint("Equal", 8, 12))
sketch1.addConstraint(Sketcher.Constraint("Equal", 9, 13))
sketch1.addConstraint(Sketcher.Constraint("Equal", 11, 15))
sketch1.addConstraint(Sketcher.Constraint("Equal", 12, 16))
sketch1.addConstraint(Sketcher.Constraint("Equal", 15, 19))
sketch1.addConstraint(Sketcher.Constraint("Equal", 16, 20))
sketch1.addConstraint(Sketcher.Constraint("Equal", 19, 23))
sketch1.addConstraint(Sketcher.Constraint("Equal", 20, 24))
sketch1.addConstraint(Sketcher.Constraint("Equal", 23, 27))
sketch1.addConstraint(Sketcher.Constraint("Equal", 57, 59))
sketch1.addConstraint(Sketcher.Constraint("Equal", 59, 61))
sketch1.addConstraint(Sketcher.Constraint("Equal", 61, 63))
sketch1.addConstraint(Sketcher.Constraint("Radius", 2, 9.875))
sketch1.addConstraint(Sketcher.Constraint("Radius", 56, 8.465))
sketch1.addConstraint(Sketcher.Constraint("DistanceY", 1, 1, 1, 2, 0.794))
sketch1.addConstraint(Sketcher.Constraint("DistanceY", -1, 1, 9, 2, Q("0.2424001 in")))
sketch1.addConstraint(Sketcher.Constraint("Distance", 5, 0.794))
sketch1.addConstraint(Sketcher.Constraint("DistanceX", 4, 2, -1, 1, 3.940098))
sketch1.addConstraint(Sketcher.Constraint("DistanceX", 5, 2, -1, 1, 4.284602))
sketch1.addConstraint(Sketcher.Constraint("DistanceY", -1, 1, 6, 2, 8.284398))
sketch1.addConstraint(Sketcher.Constraint("DistanceY", -1, 1, 11, 2, 4.809501))
sketch1.addConstraint(Sketcher.Constraint("DistanceX", 14, 2, -1, 1, 9.827898))
sketch1.addConstraint(Sketcher.Constraint("Distance", 0, 3.027951))
sketch1.addConstraint(Sketcher.Constraint("Distance", 57, 4.87314))
sketch1.addConstraint(Sketcher.Constraint("DistanceY", 57, 2, -1, 1, 2.589268))
sketch1.addConstraint(Sketcher.Constraint("DistanceX", 13, 2, -1, 1, 9.627413))
pad1 = doc.addObject("PartDesign::Pad", "Pad")
body.addObject(pad1)
pad1.Profile = sketch1
pad1.setExpression("Length", "Params.pad1_length")

sketch2 = doc.addObject("Sketcher::SketchObject", "Sketch001")
body.addObject(sketch2)
sketch2.AttachmentSupport = (doc.XY_Plane, [""])
sketch2.MapMode = "FlatFace"
sketch2.AttachmentOffset = App.Placement(V(0, 0, 0.25 * 25.4), App.Rotation())
sketch2.addGeometry(Part.Circle(V(0, 0, 0), V(0, 0, 1), 9.875), False)
sketch2.addGeometry(Part.ArcOfCircle(Part.Circle(V(0, 0, 0), V(0, 0, 1), 8.465), math.radians(105.646361), math.radians(162.188928)), False)
sketch2.addGeometry(Part.LineSegment(V(-2.283003, 8.151326, 0), V(2.589268, 8.059275, 0)), False)
sketch2.addGeometry(Part.ArcOfCircle(Part.Circle(V(0, 0, 0), V(0, 0, 1), 8.465), math.radians(15.646361), math.radians(72.188928)), False)
sketch2.addGeometry(Part.LineSegment(V(8.151326, 2.283003, 0), V(8.059275, -2.589268, 0)), False)
sketch2.addGeometry(Part.ArcOfCircle(Part.Circle(V(0, 0, 0), V(0, 0, 1), 8.465), math.radians(-74.353639), math.radians(-17.811072)), False)
sketch2.addGeometry(Part.LineSegment(V(2.283003, -8.151326, 0), V(-2.589268, -8.059275, 0)), False)
sketch2.addGeometry(Part.ArcOfCircle(Part.Circle(V(0, 0, 0), V(0, 0, 1), 8.465), math.radians(-164.353639), math.radians(-107.811072)), False)
sketch2.addGeometry(Part.LineSegment(V(-8.151326, -2.283003, 0), V(-8.059275, 2.589268, 0)), False)
sketch2.addConstraint(Sketcher.Constraint("Coincident", 1, 1, 2, 1))
sketch2.addConstraint(Sketcher.Constraint("Coincident", 2, 2, 3, 2))
sketch2.addConstraint(Sketcher.Constraint("Coincident", 3, 1, 4, 1))
sketch2.addConstraint(Sketcher.Constraint("Coincident", 4, 2, 5, 2))
sketch2.addConstraint(Sketcher.Constraint("Coincident", 5, 1, 6, 1))
sketch2.addConstraint(Sketcher.Constraint("Coincident", 6, 2, 7, 2))
sketch2.addConstraint(Sketcher.Constraint("Coincident", 7, 1, 8, 1))
sketch2.addConstraint(Sketcher.Constraint("Coincident", 8, 2, 1, 2))
sketch2.addConstraint(Sketcher.Constraint("Coincident", 0, 3, -1, 1))
sketch2.addConstraint(Sketcher.Constraint("Coincident", 1, 3, -1, 1))
sketch2.addConstraint(Sketcher.Constraint("Coincident", 3, 3, -1, 1))
sketch2.addConstraint(Sketcher.Constraint("Coincident", 5, 3, -1, 1))
sketch2.addConstraint(Sketcher.Constraint("Coincident", 7, 3, -1, 1))
sketch2.addConstraint(Sketcher.Constraint("Equal", 1, 3))
sketch2.addConstraint(Sketcher.Constraint("Equal", 3, 5))
sketch2.addConstraint(Sketcher.Constraint("Equal", 5, 7))
sketch2.addConstraint(Sketcher.Constraint("Perpendicular", 2, 4))
sketch2.addConstraint(Sketcher.Constraint("Perpendicular", 4, 6))
sketch2.addConstraint(Sketcher.Constraint("Perpendicular", 6, 8))
sketch2.addConstraint(Sketcher.Constraint("Equal", 2, 4))
sketch2.addConstraint(Sketcher.Constraint("Equal", 4, 6))
sketch2.addConstraint(Sketcher.Constraint("Equal", 6, 8))
sketch2.addConstraint(Sketcher.Constraint("Diameter", 0, 19.75))
sketch2.addConstraint(Sketcher.Constraint("Radius", 1, 8.465))
sketch2.addConstraint(Sketcher.Constraint("Distance", 2, 4.87314))
sketch2.addConstraint(Sketcher.Constraint("DistanceX", -1, 1, 2, 2, 2.589268))
pad2 = doc.addObject("PartDesign::Pad", "Pad001")
body.addObject(pad2)
pad2.Profile = sketch2
pad2.setExpression("Length", "Params.pad2_length")

sketch3 = doc.addObject("Sketcher::SketchObject", "Sketch002")
body.addObject(sketch3)
sketch3.AttachmentSupport = (doc.XY_Plane, [""])
sketch3.MapMode = "FlatFace"
sketch3.addGeometry(Part.Circle(V(0, 0, 0), V(0, 0, 1), 9.875), False)
sketch3.addGeometry(Part.ArcOfCircle(Part.Circle(V(0, 0, 0), V(0, 0, 1), 8.465), math.radians(15.646361), math.radians(72.188928)), False)
sketch3.addGeometry(Part.LineSegment(V(2.589268, 8.059275, 0), V(-2.283003, 8.151326, 0)), False)
sketch3.addGeometry(Part.ArcOfCircle(Part.Circle(V(0, 0, 0), V(0, 0, 1), 8.465), math.radians(105.646361), math.radians(162.188928)), False)
sketch3.addGeometry(Part.LineSegment(V(-8.059275, 2.589268, 0), V(-8.151326, -2.283003, 0)), False)
sketch3.addGeometry(Part.ArcOfCircle(Part.Circle(V(0, 0, 0), V(0, 0, 1), 8.465), math.radians(-164.353639), math.radians(-107.811072)), False)
sketch3.addGeometry(Part.LineSegment(V(-2.589268, -8.059275, 0), V(2.283003, -8.151326, 0)), False)
sketch3.addGeometry(Part.ArcOfCircle(Part.Circle(V(0, 0, 0), V(0, 0, 1), 8.465), math.radians(-74.353639), math.radians(-17.811072)), False)
sketch3.addGeometry(Part.LineSegment(V(8.059275, -2.589268, 0), V(8.151326, 2.283003, 0)), False)
sketch3.addConstraint(Sketcher.Constraint("Coincident", 1, 2, 2, 1))
sketch3.addConstraint(Sketcher.Constraint("Coincident", 2, 2, 3, 1))
sketch3.addConstraint(Sketcher.Constraint("Coincident", 3, 2, 4, 1))
sketch3.addConstraint(Sketcher.Constraint("Coincident", 4, 2, 5, 1))
sketch3.addConstraint(Sketcher.Constraint("Coincident", 5, 2, 6, 1))
sketch3.addConstraint(Sketcher.Constraint("Coincident", 6, 2, 7, 1))
sketch3.addConstraint(Sketcher.Constraint("Coincident", 7, 2, 8, 1))
sketch3.addConstraint(Sketcher.Constraint("Coincident", 8, 2, 1, 1))
sketch3.addConstraint(Sketcher.Constraint("Coincident", 0, 3, -1, 1))
sketch3.addConstraint(Sketcher.Constraint("Coincident", 1, 3, -1, 1))
sketch3.addConstraint(Sketcher.Constraint("Coincident", 3, 3, -1, 1))
sketch3.addConstraint(Sketcher.Constraint("Coincident", 5, 3, -1, 1))
sketch3.addConstraint(Sketcher.Constraint("Coincident", 7, 3, -1, 1))
sketch3.addConstraint(Sketcher.Constraint("Equal", 1, 3))
sketch3.addConstraint(Sketcher.Constraint("Equal", 3, 5))
sketch3.addConstraint(Sketcher.Constraint("Equal", 5, 7))
sketch3.addConstraint(Sketcher.Constraint("Perpendicular", 2, 4))
sketch3.addConstraint(Sketcher.Constraint("Perpendicular", 4, 6))
sketch3.addConstraint(Sketcher.Constraint("Perpendicular", 6, 8))
sketch3.addConstraint(Sketcher.Constraint("Equal", 2, 4))
sketch3.addConstraint(Sketcher.Constraint("Equal", 4, 6))
sketch3.addConstraint(Sketcher.Constraint("Equal", 6, 8))
sketch3.addConstraint(Sketcher.Constraint("Diameter", 0, 19.75))
sketch3.addConstraint(Sketcher.Constraint("Radius", 1, 8.465))
sketch3.addConstraint(Sketcher.Constraint("Distance", 2, 4.87314))
sketch3.addConstraint(Sketcher.Constraint("DistanceX", -1, 1, 1, 2, 2.589268))
pad3 = doc.addObject("PartDesign::Pad", "Pad002")
body.addObject(pad3)
pad3.Profile = sketch3
pad3.setExpression("Length", "Params.pad3_length")
pad3.Reversed = True

doc.recompute()
